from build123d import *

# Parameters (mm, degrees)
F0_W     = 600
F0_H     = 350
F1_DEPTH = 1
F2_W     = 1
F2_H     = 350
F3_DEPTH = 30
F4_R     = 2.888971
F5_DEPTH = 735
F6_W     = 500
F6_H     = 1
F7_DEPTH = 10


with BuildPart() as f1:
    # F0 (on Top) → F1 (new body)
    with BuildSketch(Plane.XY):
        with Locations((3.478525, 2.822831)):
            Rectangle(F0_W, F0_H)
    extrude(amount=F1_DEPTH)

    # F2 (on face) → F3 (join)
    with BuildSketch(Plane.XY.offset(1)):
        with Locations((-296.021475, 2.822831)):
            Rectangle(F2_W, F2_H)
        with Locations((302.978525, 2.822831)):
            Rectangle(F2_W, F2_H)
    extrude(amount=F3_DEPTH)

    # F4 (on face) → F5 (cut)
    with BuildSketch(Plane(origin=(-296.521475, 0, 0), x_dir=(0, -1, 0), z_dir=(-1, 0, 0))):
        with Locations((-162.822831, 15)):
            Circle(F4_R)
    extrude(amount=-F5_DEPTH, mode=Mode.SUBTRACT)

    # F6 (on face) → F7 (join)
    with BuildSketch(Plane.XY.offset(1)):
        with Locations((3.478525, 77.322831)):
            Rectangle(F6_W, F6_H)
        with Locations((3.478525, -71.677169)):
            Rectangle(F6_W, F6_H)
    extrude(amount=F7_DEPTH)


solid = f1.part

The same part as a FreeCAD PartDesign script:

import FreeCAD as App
import Part
import Sketcher

V = App.Vector
Q = App.Units.Quantity


def add_polygon(sketch, points):
    """Adds a closed chain of lines whose ends are joined by coincident constraints."""
    first, n = sketch.GeometryCount, len(points)
    for a, b in zip(points, points[1:] + points[:1]):
        sketch.addGeometry(Part.LineSegment(App.Vector(*a, 0), App.Vector(*b, 0)), False)
    for i in range(n):
        sketch.addConstraint(Sketcher.Constraint("Coincident", first + i, 2, first + (i + 1) % n, 1))

doc = App.newDocument("Part")
body = doc.addObject("PartDesign::Body", "Body")

# Sketch on XY plane
sketch1 = body.newObject("Sketcher::SketchObject", "Sketch")
sketch1.AttachmentSupport = (doc.getObject("XY_Plane"), [""])
sketch1.MapMode = "FlatFace"
add_polygon(sketch1, [(-296.521475, 177.822831), (-296.521475, -172.177169), (303.478525, -172.177169), (303.478525, 177.822831)])  # lines 0-3
sketch1.addConstraint([
    Sketcher.Constraint("Vertical", 0),
    Sketcher.Constraint("Horizontal", 1),
    Sketcher.Constraint("Vertical", 2),
    Sketcher.Constraint("Horizontal", 3),
    Sketcher.Constraint("DistanceX", 1, 1, 1, 2, Q("600 mm")),
    Sketcher.Constraint("DistanceY", 0, 2, 0, 1, Q("350 mm")),
    Sketcher.Constraint("DistanceY", 0, 2, -1, 1, Q("172.177169 mm")),
    Sketcher.Constraint("DistanceX", 0, 2, -1, 1, Q("296.521475 mm")),
])
pad1 = body.newObject("PartDesign::Pad", "Pad")
pad1.Profile = sketch1
pad1.Length = 1

# Sketch on XY plane
sketch2 = body.newObject("Sketcher::SketchObject", "Sketch001")
sketch2.AttachmentSupport = (doc.getObject("XY_Plane"), [""])
sketch2.MapMode = "FlatFace"
sketch2.AttachmentOffset = App.Placement(V(0, 0, 1), App.Rotation())
add_polygon(sketch2, [(-296.521475, 177.822831), (-296.521475, -172.177169), (-295.521475, -172.177169), (-295.521475, 177.822831)])  # lines 0-3
add_polygon(sketch2, [(302.478525, 177.822831), (302.478525, -172.177169), (303.478525, -172.177169), (303.478525, 177.822831)])  # lines 4-7
sketch2.addConstraint([
    Sketcher.Constraint("Vertical", 0),
    Sketcher.Constraint("Horizontal", 1),
    Sketcher.Constraint("Vertical", 2),
    Sketcher.Constraint("Horizontal", 3),
    Sketcher.Constraint("Vertical", 4),
    Sketcher.Constraint("Horizontal", 5),
    Sketcher.Constraint("Vertical", 6),
    Sketcher.Constraint("Horizontal", 7),
    Sketcher.Constraint("Horizontal", 1, 2, 4, 2),
    Sketcher.Constraint("Horizontal", 3, 2, 6, 2),
    Sketcher.Constraint("Equal", 3, 5),
    Sketcher.Constraint("DistanceX", 1, 1, 1, 2, Q("1 mm")),
    Sketcher.Constraint("DistanceY", 0, 2, 0, 1, Q("350 mm")),
    Sketcher.Constraint("DistanceX", 1, 2, 4, 2, Q("598 mm")),
    Sketcher.Constraint("DistanceY", 0, 2, -1, 1, Q("172.177169 mm")),
    Sketcher.Constraint("DistanceX", 0, 2, -1, 1, Q("296.521475 mm")),
])
pad2 = body.newObject("PartDesign::Pad", "Pad001")
pad2.Profile = sketch2
pad2.Length = 30

# Sketch on YZ plane
sketch3 = body.newObject("Sketcher::SketchObject", "Sketch002")
sketch3.AttachmentSupport = (doc.getObject("YZ_Plane"), [""])
sketch3.MapMode = "FlatFace"
sketch3.AttachmentOffset = App.Placement(V(0, 0, -296.521475), App.Rotation())
sketch3.addGeometry(Part.Circle(V(162.822831, 15, 0), V(0, 0, 1), 2.888971), False)
sketch3.addConstraint([
    Sketcher.Constraint("DistanceY", -1, 1, 0, 3, Q("15 mm")),
    Sketcher.Constraint("Diameter", 0, Q("5.777942 mm")),
    Sketcher.Constraint("DistanceX", -1, 1, 0, 3, Q("162.822831 mm")),
])
pocket1 = body.newObject("PartDesign::Pocket", "Pocket")
pocket1.Profile = sketch3
pocket1.Length = 735
pocket1.Reversed = True

# Sketch on XY plane
sketch4 = body.newObject("Sketcher::SketchObject", "Sketch003")
sketch4.AttachmentSupport = (doc.getObject("XY_Plane"), [""])
sketch4.MapMode = "FlatFace"
sketch4.AttachmentOffset = App.Placement(V(0, 0, 1), App.Rotation())
add_polygon(sketch4, [(-246.521475, 77.822831), (-246.521475, 76.822831), (253.478525, 76.822831), (253.478525, 77.822831)])  # lines 0-3
add_polygon(sketch4, [(-246.521475, -71.177169), (-246.521475, -72.177169), (253.478525, -72.177169), (253.478525, -71.177169)])  # lines 4-7
sketch4.addConstraint([
    Sketcher.Constraint("Vertical", 0),
    Sketcher.Constraint("Horizontal", 1),
    Sketcher.Constraint("Vertical", 2),
    Sketcher.Constraint("Horizontal", 3),
    Sketcher.Constraint("Vertical", 4),
    Sketcher.Constraint("Horizontal", 5),
    Sketcher.Constraint("Vertical", 6),
    Sketcher.Constraint("Horizontal", 7),
    Sketcher.Constraint("Vertical", 3, 2, 4, 2),
    Sketcher.Constraint("Vertical", 2, 2, 5, 2),
    Sketcher.Constraint("Equal", 2, 4),
    Sketcher.Constraint("DistanceX", 1, 1, 1, 2, Q("500 mm")),
    Sketcher.Constraint("DistanceY", 0, 2, 0, 1, Q("1 mm")),
    Sketcher.Constraint("DistanceY", 4, 2, 0, 2, Q("149 mm")),
    Sketcher.Constraint("DistanceY", -1, 1, 0, 2, Q("76.822831 mm")),
    Sketcher.Constraint("DistanceX", 0, 2, -1, 1, Q("246.521475 mm")),
])
pad3 = body.newObject("PartDesign::Pad", "Pad002")
pad3.Profile = sketch4
pad3.Length = 10

doc.recompute()
